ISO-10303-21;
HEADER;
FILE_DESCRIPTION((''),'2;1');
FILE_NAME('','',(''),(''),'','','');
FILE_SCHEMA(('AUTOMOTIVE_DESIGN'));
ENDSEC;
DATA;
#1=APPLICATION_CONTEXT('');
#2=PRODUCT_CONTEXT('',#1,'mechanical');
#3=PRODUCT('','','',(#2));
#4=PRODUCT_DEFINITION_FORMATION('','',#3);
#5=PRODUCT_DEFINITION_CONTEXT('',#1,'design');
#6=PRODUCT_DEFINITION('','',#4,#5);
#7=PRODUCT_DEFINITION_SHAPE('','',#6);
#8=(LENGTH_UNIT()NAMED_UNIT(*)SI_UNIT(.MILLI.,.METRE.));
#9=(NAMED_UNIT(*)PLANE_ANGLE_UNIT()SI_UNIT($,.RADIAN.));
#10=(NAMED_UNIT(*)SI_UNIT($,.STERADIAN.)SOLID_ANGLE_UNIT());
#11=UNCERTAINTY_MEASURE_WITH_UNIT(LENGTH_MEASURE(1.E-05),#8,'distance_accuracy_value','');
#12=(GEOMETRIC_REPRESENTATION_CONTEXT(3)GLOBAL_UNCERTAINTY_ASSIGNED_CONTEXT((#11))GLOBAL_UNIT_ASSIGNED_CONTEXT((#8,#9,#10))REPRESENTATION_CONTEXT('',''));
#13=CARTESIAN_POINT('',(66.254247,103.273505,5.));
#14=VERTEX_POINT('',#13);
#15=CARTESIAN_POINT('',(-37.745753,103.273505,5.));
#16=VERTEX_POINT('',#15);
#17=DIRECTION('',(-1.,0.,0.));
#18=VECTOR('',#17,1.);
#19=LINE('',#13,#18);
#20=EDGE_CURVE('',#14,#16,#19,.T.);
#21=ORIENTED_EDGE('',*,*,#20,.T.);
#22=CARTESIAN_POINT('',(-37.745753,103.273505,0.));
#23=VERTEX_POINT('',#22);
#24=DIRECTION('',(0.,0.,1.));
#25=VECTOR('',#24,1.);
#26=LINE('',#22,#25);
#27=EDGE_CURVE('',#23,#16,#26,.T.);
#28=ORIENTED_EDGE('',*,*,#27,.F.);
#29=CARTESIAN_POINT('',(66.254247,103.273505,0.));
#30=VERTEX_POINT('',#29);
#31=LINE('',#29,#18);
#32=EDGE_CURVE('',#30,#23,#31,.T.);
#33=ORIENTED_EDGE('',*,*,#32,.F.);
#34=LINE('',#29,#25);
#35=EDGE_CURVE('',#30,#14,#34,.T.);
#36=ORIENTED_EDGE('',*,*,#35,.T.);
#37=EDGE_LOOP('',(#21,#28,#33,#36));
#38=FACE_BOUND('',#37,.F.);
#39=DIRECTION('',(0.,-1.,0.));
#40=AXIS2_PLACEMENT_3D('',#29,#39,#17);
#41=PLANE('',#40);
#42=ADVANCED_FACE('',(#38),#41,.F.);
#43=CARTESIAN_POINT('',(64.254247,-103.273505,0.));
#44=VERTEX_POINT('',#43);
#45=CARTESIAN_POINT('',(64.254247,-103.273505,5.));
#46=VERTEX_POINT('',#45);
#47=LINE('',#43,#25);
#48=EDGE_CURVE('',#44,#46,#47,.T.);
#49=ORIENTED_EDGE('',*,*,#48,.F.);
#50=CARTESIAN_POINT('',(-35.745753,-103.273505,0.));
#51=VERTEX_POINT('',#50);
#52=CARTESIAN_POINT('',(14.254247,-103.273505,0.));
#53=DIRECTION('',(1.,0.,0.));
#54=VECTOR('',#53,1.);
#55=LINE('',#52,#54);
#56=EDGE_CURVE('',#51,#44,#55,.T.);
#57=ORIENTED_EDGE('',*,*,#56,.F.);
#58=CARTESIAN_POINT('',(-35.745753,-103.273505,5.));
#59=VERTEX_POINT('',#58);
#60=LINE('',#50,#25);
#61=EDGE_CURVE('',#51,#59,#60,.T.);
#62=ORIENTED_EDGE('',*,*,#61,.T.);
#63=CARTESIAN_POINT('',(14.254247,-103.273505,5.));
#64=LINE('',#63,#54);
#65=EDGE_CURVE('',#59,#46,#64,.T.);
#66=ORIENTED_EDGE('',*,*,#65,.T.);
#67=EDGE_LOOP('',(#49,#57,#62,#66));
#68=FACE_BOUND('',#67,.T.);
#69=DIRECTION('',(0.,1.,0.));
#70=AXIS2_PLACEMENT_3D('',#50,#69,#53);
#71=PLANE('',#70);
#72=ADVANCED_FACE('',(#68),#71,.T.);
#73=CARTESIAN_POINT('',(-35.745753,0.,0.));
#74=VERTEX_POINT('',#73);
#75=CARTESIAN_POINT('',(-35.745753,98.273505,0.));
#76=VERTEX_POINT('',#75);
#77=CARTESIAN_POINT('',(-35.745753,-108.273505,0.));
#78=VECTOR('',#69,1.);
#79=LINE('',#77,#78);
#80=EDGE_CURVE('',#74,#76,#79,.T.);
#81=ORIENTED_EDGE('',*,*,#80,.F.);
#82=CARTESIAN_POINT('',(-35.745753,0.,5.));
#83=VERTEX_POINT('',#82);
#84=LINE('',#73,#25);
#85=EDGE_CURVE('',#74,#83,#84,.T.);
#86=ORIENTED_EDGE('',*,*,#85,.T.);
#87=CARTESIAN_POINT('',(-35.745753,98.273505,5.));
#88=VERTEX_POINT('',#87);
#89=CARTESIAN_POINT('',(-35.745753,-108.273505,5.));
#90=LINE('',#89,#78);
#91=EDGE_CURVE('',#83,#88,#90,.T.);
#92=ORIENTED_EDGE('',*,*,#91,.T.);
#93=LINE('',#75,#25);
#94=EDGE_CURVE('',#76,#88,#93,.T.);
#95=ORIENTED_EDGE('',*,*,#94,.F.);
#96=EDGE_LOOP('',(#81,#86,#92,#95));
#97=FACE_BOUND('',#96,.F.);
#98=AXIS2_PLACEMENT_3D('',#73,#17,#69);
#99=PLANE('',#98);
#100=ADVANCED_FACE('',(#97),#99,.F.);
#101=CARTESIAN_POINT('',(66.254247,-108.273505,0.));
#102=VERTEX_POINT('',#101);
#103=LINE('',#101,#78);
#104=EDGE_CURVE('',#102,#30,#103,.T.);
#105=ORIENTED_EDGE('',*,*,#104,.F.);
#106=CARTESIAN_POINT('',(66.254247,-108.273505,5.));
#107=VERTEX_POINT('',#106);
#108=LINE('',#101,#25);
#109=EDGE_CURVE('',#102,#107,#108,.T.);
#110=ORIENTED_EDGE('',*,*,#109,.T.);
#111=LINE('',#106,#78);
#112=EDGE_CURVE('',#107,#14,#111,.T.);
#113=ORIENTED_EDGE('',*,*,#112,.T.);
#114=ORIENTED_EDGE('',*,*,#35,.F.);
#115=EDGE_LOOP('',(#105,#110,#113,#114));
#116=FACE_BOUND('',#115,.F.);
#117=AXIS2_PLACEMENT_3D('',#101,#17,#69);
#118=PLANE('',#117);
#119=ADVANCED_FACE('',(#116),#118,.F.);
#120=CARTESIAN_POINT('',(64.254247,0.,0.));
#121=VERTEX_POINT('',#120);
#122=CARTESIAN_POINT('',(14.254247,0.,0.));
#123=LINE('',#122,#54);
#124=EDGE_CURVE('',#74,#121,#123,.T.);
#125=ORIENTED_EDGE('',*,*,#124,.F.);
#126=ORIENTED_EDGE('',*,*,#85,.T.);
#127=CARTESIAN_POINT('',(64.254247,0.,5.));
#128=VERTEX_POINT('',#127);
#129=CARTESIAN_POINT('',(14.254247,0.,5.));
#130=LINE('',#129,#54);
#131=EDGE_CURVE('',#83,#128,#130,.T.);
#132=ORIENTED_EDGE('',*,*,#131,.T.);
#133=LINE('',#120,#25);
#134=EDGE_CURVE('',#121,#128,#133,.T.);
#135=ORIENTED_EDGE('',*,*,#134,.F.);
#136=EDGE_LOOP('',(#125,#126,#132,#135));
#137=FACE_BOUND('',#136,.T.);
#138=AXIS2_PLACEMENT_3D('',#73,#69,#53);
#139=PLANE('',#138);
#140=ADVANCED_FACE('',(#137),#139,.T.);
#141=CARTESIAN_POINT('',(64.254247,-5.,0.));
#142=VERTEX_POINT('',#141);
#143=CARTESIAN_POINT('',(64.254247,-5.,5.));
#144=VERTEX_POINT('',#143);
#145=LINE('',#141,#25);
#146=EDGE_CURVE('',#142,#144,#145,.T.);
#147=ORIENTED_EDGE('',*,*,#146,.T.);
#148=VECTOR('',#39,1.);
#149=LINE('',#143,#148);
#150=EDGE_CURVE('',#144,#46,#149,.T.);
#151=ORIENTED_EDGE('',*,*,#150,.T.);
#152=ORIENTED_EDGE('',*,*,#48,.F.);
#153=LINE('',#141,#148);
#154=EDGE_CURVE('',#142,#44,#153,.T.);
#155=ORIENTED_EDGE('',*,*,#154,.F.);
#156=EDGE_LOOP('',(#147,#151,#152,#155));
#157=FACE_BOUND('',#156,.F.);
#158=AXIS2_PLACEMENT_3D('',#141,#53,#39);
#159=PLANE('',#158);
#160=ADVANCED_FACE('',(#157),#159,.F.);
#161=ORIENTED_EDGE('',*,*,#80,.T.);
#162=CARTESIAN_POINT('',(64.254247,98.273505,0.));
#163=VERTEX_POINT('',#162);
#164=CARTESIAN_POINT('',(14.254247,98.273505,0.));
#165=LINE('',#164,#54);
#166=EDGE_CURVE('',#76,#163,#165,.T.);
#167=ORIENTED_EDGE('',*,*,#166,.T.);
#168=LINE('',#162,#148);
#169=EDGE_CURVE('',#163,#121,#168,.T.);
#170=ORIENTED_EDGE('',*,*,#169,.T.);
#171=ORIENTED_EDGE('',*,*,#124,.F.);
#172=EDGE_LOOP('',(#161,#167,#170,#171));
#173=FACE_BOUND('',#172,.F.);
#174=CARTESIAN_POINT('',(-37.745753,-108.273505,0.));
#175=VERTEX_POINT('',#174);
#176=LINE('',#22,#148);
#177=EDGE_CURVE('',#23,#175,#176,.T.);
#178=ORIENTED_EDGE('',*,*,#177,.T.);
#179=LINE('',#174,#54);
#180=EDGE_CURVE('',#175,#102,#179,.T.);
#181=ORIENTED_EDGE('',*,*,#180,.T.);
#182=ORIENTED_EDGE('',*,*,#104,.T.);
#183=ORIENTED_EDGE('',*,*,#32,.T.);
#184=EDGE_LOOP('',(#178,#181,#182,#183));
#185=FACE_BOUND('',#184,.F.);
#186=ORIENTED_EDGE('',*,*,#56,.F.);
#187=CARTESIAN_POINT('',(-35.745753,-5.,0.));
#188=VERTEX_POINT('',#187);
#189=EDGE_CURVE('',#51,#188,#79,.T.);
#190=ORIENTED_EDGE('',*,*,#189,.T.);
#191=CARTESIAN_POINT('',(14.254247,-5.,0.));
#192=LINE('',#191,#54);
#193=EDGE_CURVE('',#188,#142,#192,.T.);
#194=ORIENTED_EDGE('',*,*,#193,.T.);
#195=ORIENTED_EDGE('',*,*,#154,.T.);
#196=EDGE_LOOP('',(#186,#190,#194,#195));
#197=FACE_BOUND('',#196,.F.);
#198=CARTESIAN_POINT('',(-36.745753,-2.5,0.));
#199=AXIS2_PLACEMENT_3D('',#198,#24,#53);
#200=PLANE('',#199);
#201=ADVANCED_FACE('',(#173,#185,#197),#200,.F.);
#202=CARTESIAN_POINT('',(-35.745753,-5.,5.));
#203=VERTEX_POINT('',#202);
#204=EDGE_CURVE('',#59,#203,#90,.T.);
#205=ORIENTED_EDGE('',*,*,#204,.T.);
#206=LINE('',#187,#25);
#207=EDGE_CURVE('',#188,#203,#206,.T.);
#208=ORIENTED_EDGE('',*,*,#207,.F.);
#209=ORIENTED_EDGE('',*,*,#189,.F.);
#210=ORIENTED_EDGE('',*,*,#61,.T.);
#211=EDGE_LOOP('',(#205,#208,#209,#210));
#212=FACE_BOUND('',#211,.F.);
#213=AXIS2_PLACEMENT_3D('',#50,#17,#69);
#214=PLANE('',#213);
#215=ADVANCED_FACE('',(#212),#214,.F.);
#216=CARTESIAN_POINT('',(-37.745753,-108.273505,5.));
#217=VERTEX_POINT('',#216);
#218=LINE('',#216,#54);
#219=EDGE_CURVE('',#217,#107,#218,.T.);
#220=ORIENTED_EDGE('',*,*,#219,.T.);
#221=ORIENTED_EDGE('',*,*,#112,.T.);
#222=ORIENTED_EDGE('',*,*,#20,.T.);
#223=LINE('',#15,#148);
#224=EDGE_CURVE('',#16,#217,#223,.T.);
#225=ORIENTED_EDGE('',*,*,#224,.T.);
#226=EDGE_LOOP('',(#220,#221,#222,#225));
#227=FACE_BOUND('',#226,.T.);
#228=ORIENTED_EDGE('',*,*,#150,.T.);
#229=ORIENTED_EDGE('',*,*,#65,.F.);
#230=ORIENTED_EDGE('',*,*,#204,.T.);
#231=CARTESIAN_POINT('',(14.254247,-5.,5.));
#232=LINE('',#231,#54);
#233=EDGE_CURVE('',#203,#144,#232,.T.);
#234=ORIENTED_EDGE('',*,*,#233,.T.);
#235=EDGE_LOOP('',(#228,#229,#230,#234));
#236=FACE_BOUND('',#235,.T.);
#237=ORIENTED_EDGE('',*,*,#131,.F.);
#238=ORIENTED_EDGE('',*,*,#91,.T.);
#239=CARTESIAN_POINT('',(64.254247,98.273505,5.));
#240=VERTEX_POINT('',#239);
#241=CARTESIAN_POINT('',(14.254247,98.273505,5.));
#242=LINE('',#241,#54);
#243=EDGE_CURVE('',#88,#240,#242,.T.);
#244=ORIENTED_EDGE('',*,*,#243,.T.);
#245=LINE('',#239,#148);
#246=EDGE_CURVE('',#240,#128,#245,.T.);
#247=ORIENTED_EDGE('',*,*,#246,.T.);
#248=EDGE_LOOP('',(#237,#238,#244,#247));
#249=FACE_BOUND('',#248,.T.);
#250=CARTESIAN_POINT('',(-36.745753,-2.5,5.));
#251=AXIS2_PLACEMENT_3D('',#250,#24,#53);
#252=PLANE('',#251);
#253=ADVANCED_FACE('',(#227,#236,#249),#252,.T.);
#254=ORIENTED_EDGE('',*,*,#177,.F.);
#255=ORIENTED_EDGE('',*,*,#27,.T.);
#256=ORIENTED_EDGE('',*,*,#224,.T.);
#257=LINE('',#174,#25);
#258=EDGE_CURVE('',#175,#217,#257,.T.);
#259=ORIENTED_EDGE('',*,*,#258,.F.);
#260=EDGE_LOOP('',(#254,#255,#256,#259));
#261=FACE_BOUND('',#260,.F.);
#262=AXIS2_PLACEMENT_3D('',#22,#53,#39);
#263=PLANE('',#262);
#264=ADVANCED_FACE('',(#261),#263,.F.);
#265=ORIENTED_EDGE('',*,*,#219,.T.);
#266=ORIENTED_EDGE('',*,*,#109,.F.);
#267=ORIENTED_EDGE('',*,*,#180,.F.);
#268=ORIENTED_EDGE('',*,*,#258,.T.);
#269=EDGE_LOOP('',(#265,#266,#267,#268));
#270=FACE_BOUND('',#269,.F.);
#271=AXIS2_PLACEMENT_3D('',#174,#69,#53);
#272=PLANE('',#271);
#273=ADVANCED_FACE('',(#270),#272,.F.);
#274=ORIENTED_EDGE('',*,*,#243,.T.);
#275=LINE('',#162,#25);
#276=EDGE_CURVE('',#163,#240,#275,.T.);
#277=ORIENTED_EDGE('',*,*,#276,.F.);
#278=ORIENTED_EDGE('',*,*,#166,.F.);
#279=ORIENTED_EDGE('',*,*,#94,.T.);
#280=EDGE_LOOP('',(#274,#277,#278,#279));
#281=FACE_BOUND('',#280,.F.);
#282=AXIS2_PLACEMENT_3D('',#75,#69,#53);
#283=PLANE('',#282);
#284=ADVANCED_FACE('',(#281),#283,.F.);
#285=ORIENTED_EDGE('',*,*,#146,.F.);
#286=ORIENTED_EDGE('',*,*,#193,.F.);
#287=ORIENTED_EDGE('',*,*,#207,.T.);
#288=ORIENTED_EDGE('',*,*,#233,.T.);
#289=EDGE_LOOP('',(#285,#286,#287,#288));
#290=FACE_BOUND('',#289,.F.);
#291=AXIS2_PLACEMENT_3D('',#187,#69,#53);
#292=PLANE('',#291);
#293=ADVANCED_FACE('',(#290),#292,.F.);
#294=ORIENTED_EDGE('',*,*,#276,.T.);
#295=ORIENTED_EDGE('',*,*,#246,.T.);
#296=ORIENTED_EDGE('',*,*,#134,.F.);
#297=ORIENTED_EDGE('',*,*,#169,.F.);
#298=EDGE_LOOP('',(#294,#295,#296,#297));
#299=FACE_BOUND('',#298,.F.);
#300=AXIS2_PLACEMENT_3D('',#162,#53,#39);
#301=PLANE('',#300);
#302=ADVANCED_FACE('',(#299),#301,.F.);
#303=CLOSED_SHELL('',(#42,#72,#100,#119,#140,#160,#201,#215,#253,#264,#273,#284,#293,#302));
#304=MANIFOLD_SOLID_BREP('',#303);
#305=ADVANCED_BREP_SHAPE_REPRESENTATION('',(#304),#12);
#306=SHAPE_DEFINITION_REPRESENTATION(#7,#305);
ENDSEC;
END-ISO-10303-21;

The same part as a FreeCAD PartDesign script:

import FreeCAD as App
import Part
import Sketcher

V = App.Vector
Q = App.Units.Quantity

doc = App.newDocument("Part")
body = doc.addObject("PartDesign::Body", "Body")

sketch1 = body.newObject("Sketcher::SketchObject", "Sketch")
sketch1.AttachmentSupport = (doc.getObject("XY_Plane"), [""])
sketch1.MapMode = "FlatFace"
sketch1.addGeometry([
    Part.LineSegment(V(-38, 103, 0), V(-38, -108, 0)),
    Part.LineSegment(V(-38, -108, 0), V(66, -108, 0)),
    Part.LineSegment(V(66, -108, 0), V(66, 103, 0)),
    Part.LineSegment(V(66, 103, 0), V(-38, 103, 0)),
    Part.LineSegment(V(64, -103, 0), V(-36, -103, 0)),
    Part.LineSegment(V(-36, -103, 0), V(-36, -5, 0)),
    Part.LineSegment(V(-36, -5, 0), V(64, -5, 0)),
    Part.LineSegment(V(64, -5, 0), V(64, -103, 0)),
    Part.LineSegment(V(64, 0, 0), V(-36, 0, 0)),
    Part.LineSegment(V(-36, 0, 0), V(-36, 98, 0)),
    Part.LineSegment(V(-36, 98, 0), V(64, 98, 0)),
    Part.LineSegment(V(64, 98, 0), V(64, 0, 0)),
], False)
sketch1.addConstraint([
    Sketcher.Constraint("Coincident", 0, 2, 1, 1),
    Sketcher.Constraint("Coincident", 1, 2, 2, 1),
    Sketcher.Constraint("Coincident", 2, 2, 3, 1),
    Sketcher.Constraint("Coincident", 3, 2, 0, 1),
    Sketcher.Constraint("Coincident", 4, 2, 5, 1),
    Sketcher.Constraint("Coincident", 5, 2, 6, 1),
    Sketcher.Constraint("Coincident", 6, 2, 7, 1),
    Sketcher.Constraint("Coincident", 7, 2, 4, 1),
    Sketcher.Constraint("Coincident", 8, 2, 9, 1),
    Sketcher.Constraint("Coincident", 9, 2, 10, 1),
    Sketcher.Constraint("Coincident", 10, 2, 11, 1),
    Sketcher.Constraint("Coincident", 11, 2, 8, 1),
    Sketcher.Constraint("Vertical", 0),
    Sketcher.Constraint("Horizontal", 1),
    Sketcher.Constraint("Vertical", 2),
    Sketcher.Constraint("Horizontal", 3),
    Sketcher.Constraint("Horizontal", 4),
    Sketcher.Constraint("Vertical", 5),
    Sketcher.Constraint("Horizontal", 6),
    Sketcher.Constraint("Vertical", 7),
    Sketcher.Constraint("Horizontal", 8),
    Sketcher.Constraint("Vertical", 9),
    Sketcher.Constraint("Horizontal", 10),
    Sketcher.Constraint("Vertical", 11),
    Sketcher.Constraint("PointOnObject", 8, 2, -1),
    Sketcher.Constraint("Vertical", 5, 2, 8, 2),
    Sketcher.Constraint("Vertical", 7, 2, 10, 2),
    Sketcher.Constraint("Equal", 7, 9),
    Sketcher.Constraint("DistanceX", 1, 1, 1, 2, Q("104 mm")),
    Sketcher.Constraint("DistanceX", 4, 2, 4, 1, Q("100 mm")),
    Sketcher.Constraint("DistanceY", 5, 2, -1, 1, Q("5 mm")),
    Sketcher.Constraint("DistanceX", 0, 2, 4, 2, Q("2 mm")),
    Sketcher.Constraint("DistanceY", 0, 2, 4, 2, Q("5 mm")),
    Sketcher.Constraint("DistanceY", 9, 2, 3, 2, Q("5 mm")),
    Sketcher.Constraint("DistanceY", 0, 2, 0, 1, Q("211.54701 mm")),
    Sketcher.Constraint("DistanceX", 0, 2, -1, 1, Q("37.745753 mm")),
])
pad1 = body.newObject("PartDesign::Pad", "Pad")
pad1.Profile = sketch1
pad1.Length = 5

doc.recompute()
